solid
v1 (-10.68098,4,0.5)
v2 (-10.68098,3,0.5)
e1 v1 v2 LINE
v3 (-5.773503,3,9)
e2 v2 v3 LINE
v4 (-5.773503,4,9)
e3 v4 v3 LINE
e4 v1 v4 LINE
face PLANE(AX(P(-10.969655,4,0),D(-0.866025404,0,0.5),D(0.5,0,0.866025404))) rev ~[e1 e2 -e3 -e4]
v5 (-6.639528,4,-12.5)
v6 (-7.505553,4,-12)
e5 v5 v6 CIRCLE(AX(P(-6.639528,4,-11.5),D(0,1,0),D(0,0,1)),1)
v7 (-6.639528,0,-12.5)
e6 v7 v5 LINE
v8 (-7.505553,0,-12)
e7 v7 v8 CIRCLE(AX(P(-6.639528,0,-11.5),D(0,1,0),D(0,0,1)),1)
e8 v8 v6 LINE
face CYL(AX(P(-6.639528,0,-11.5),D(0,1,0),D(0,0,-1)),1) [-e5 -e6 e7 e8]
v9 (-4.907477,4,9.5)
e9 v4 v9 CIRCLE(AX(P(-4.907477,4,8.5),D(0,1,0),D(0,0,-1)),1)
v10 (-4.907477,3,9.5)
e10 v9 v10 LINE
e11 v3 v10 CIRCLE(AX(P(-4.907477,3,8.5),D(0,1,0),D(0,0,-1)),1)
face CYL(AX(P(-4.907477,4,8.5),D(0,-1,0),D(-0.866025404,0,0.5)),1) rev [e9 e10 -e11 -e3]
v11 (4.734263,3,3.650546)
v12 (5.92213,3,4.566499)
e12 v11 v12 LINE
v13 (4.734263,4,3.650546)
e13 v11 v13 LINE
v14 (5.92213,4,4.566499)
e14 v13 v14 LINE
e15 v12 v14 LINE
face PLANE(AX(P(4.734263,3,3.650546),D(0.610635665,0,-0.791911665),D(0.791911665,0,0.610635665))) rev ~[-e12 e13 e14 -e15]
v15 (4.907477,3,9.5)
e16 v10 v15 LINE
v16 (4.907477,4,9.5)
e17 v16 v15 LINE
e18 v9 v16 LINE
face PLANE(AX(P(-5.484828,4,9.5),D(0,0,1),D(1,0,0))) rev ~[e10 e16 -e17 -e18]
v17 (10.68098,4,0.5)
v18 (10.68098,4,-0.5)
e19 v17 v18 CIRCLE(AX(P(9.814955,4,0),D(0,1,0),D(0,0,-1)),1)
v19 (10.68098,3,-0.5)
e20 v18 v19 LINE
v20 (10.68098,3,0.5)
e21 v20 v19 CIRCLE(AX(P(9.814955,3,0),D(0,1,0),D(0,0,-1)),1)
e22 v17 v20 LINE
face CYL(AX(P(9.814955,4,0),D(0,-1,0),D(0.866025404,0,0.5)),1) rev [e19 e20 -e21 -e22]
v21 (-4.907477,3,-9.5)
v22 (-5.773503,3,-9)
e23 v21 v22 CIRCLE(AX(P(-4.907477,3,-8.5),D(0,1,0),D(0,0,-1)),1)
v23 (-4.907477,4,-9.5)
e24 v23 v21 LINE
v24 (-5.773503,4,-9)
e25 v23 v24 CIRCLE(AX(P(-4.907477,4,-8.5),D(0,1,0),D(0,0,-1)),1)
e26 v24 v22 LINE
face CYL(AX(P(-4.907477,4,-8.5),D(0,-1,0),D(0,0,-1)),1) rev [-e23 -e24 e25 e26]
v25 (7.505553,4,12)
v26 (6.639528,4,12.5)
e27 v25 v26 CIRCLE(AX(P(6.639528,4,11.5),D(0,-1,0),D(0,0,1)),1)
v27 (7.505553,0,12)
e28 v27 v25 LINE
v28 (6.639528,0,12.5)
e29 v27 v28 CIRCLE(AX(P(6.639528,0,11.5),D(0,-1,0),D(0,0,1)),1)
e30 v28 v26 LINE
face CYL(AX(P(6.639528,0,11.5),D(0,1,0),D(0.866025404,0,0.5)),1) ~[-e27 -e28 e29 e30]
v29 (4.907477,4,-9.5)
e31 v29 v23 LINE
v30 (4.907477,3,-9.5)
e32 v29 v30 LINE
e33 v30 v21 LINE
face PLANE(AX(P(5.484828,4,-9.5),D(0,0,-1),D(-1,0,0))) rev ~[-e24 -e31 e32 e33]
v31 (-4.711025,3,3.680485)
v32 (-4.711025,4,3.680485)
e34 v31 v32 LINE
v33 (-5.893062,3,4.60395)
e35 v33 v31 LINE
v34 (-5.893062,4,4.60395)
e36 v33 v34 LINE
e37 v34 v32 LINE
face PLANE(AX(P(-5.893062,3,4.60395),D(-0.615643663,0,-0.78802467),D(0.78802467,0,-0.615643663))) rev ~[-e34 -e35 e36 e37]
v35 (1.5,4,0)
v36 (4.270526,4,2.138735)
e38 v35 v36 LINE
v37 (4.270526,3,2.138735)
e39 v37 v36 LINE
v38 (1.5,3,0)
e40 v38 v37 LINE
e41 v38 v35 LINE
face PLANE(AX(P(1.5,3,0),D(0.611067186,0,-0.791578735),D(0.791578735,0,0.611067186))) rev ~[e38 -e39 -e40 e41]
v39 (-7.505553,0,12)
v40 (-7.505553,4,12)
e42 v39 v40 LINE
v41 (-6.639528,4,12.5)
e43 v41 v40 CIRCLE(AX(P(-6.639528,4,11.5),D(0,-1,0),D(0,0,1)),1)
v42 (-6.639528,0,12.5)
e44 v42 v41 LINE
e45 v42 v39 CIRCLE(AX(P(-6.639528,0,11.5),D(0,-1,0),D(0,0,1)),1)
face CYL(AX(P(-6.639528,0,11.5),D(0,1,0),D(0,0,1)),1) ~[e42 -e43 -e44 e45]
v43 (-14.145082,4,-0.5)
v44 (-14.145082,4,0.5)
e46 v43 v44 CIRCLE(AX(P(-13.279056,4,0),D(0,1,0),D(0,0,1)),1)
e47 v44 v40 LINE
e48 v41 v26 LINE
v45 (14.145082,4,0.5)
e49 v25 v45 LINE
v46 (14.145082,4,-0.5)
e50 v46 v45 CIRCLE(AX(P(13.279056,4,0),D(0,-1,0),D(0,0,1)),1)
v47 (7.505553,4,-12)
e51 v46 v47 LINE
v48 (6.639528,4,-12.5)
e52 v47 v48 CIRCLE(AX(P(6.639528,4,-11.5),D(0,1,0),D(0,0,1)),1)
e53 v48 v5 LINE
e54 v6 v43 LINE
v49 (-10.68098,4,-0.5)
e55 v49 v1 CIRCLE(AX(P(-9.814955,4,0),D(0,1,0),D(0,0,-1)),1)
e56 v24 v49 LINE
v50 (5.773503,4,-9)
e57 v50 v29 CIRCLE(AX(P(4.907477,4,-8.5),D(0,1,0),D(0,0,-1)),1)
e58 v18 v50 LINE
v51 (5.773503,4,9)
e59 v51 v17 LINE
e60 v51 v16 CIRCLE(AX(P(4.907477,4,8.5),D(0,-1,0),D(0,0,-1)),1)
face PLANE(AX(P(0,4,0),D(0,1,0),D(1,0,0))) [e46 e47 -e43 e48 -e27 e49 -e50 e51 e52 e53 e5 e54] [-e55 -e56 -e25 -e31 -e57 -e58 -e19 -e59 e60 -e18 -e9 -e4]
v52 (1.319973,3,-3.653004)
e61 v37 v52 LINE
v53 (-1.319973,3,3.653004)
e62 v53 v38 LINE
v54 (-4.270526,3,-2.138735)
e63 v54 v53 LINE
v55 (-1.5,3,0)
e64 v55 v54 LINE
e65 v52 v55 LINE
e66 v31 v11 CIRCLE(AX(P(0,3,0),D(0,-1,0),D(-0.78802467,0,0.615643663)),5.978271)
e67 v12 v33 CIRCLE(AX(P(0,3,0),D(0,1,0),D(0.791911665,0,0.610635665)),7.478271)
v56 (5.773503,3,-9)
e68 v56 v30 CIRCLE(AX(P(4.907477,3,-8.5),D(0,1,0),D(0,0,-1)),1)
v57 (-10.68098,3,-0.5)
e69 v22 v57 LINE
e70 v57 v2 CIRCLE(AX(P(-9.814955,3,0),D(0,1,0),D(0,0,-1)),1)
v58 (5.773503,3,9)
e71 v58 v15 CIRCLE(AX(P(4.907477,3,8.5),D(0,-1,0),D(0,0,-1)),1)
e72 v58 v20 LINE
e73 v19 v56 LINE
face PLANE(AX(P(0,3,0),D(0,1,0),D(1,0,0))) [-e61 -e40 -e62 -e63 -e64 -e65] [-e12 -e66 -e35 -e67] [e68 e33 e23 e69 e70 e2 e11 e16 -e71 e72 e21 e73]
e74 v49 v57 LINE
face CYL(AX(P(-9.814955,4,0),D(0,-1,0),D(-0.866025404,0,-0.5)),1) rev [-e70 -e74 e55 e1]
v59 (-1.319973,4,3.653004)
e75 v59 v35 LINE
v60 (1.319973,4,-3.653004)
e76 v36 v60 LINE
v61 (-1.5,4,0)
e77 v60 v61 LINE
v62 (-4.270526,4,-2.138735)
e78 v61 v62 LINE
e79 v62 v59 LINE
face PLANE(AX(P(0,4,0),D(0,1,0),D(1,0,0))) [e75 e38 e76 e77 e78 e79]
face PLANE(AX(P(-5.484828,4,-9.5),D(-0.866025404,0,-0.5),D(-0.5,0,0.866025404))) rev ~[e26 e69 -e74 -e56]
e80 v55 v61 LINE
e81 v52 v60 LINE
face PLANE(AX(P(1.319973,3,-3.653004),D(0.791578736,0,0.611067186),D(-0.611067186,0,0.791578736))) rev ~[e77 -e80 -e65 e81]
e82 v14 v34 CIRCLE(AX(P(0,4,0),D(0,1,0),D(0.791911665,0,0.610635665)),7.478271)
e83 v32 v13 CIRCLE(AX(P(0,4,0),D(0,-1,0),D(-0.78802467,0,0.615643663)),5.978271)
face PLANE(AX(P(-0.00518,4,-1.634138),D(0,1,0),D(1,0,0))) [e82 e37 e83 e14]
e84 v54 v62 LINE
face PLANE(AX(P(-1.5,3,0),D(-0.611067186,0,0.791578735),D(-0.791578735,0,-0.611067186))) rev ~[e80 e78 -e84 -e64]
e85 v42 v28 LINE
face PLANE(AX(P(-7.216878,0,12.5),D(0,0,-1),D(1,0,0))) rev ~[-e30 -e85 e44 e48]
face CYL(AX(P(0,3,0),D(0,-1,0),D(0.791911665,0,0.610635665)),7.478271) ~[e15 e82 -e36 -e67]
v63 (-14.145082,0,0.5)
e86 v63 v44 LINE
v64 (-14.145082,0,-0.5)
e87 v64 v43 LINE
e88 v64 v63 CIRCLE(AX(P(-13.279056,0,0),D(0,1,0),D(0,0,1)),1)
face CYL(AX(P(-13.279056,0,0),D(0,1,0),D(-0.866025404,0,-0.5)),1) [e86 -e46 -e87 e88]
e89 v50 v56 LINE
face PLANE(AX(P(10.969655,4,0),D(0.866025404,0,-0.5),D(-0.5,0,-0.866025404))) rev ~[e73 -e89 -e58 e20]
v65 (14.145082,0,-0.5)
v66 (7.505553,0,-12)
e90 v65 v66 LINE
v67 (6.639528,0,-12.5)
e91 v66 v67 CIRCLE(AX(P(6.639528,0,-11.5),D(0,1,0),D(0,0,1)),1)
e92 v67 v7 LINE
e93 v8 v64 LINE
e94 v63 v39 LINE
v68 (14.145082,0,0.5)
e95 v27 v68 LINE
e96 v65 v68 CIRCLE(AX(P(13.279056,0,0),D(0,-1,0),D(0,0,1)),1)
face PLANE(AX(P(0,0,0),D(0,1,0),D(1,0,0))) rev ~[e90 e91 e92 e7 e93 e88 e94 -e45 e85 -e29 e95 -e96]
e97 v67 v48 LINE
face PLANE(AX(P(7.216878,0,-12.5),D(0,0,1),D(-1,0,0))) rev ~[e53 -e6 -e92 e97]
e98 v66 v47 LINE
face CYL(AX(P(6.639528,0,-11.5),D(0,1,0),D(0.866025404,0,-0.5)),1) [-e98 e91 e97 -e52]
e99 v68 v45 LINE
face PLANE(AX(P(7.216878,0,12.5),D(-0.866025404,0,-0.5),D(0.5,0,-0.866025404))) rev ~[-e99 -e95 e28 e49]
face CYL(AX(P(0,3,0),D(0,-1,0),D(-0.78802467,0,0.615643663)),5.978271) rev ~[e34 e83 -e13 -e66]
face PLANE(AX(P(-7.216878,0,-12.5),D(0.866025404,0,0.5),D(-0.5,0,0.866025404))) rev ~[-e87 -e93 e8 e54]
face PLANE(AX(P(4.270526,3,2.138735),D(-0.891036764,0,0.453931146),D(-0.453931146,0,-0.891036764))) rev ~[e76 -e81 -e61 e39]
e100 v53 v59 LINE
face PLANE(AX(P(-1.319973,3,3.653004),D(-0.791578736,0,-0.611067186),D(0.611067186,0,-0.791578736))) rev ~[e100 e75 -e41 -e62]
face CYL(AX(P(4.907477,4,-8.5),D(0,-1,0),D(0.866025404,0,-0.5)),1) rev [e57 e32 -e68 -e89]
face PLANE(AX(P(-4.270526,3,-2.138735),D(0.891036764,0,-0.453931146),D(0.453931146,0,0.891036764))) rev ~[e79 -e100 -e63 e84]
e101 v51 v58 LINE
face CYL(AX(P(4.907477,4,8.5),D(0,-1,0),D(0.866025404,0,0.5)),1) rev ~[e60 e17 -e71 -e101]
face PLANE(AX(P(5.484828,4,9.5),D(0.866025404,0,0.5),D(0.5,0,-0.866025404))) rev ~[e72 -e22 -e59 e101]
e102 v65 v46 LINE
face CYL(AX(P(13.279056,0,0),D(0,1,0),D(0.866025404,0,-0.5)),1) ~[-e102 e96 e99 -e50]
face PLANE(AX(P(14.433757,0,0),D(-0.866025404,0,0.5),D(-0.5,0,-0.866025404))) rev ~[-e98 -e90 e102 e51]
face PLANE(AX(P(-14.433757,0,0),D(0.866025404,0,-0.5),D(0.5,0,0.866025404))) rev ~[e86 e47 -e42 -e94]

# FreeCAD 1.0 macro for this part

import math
import FreeCAD as App
import Part
import Sketcher

V = App.Vector
Q = App.Units.Quantity


def edges_at(feature, points):
    """Names of the edges that pass closest to the given points."""
    edges = feature.Shape.Edges
    near = lambda p: min(range(len(edges)), key=lambda i: edges[i].distToShape(Part.Vertex(*p))[0])
    return sorted({f"Edge{near(p) + 1}" for p in points})

doc = App.newDocument("Part")
body = doc.addObject("PartDesign::Body", "Body")

# Sketch on XZ plane
sketch1 = doc.addObject("Sketcher::SketchObject", "Sketch")
body.addObject(sketch1)
sketch1.AttachmentSupport = (doc.XZ_Plane, [""])
sketch1.MapMode = "FlatFace"
sketch1.addGeometry([
    Part.LineSegment(V(14, 0, 0), V(7, -12, 0)),  # 0
    Part.LineSegment(V(7, -12, 0), V(-7, -12, 0)),  # 1
    Part.LineSegment(V(-7, -12, 0), V(-14, 0, 0)),  # 2
    Part.LineSegment(V(-14, 0, 0), V(-7, 12, 0)),  # 3
    Part.LineSegment(V(-7, 12, 0), V(7, 12, 0)),  # 4
    Part.LineSegment(V(7, 12, 0), V(14, 0, 0)),  # 5
], False)
sketch1.addConstraint([
    Sketcher.Constraint("Coincident", 0, 2, 1, 1),
    Sketcher.Constraint("Coincident", 1, 2, 2, 1),
    Sketcher.Constraint("Coincident", 2, 2, 3, 1),
    Sketcher.Constraint("Coincident", 3, 2, 4, 1),
    Sketcher.Constraint("Coincident", 4, 2, 5, 1),
    Sketcher.Constraint("Coincident", 5, 2, 0, 1),
    Sketcher.Constraint("Horizontal", 1),
    Sketcher.Constraint("Horizontal", 4),
    Sketcher.Constraint("Symmetric", 0, 2, 3, 2, -1, 1),
    Sketcher.Constraint("Symmetric", 2, 2, 5, 2, -1, 1),
    Sketcher.Constraint("PointOnObject", 2, 2, -1),
    Sketcher.Constraint("Parallel", 2, 5),
    Sketcher.Constraint("Vertical", 1, 2, 3, 2),
    Sketcher.Constraint("Angle", 0, Q("-120 deg")),
    Sketcher.Constraint("DistanceY", 1, 2, 3, 2, 25.0),
    Sketcher.Constraint("DistanceX", 1, 2, 1, 1, 14.433757),
])
pad1 = doc.addObject("PartDesign::Pad", "Pad")
body.addObject(pad1)
pad1.Profile = sketch1
pad1.Length = 4
pad1.Reversed = True

# Sketch on XZ plane
sketch2 = doc.addObject("Sketcher::SketchObject", "Sketch001")
body.addObject(sketch2)
sketch2.AttachmentSupport = (doc.XZ_Plane, [""])
sketch2.MapMode = "FlatFace"
sketch2.AttachmentOffset = App.Placement(V(0, 0, -4), App.Rotation())
sketch2.addGeometry([
    Part.LineSegment(V(5, 10, 0), V(11, 0, 0)),  # 0
    Part.LineSegment(V(11, 0, 0), V(5, -10, 0)),  # 1
    Part.LineSegment(V(5, -10, 0), V(-5, -10, 0)),  # 2
    Part.LineSegment(V(-5, -10, 0), V(-11, 0, 0)),  # 3
    Part.LineSegment(V(-11, 0, 0), V(-5, 10, 0)),  # 4
    Part.LineSegment(V(-5, 10, 0), V(5, 10, 0)),  # 5
], False)
sketch2.addConstraint([
    Sketcher.Constraint("Coincident", 0, 2, 1, 1),
    Sketcher.Constraint("Coincident", 1, 2, 2, 1),
    Sketcher.Constraint("Coincident", 2, 2, 3, 1),
    Sketcher.Constraint("Coincident", 3, 2, 4, 1),
    Sketcher.Constraint("Coincident", 4, 2, 5, 1),
    Sketcher.Constraint("Coincident", 5, 2, 0, 1),
    Sketcher.Constraint("Horizontal", 2),
    Sketcher.Constraint("Horizontal", 5),
    Sketcher.Constraint("Symmetric", 0, 2, 3, 2, -1, 1),
    Sketcher.Constraint("Symmetric", 1, 2, 4, 2, -1, 1),
    Sketcher.Constraint("PointOnObject", 0, 2, -1),
    Sketcher.Constraint("Parallel", 0, 3),
    Sketcher.Constraint("Vertical", 2, 2, 4, 2),
    Sketcher.Constraint("Angle", 0, Q("-60 deg")),
    Sketcher.Constraint("DistanceY", 2, 2, 4, 2, 19.0),
    Sketcher.Constraint("DistanceX", 2, 2, 2, 1, 10.969655),
])
pocket1 = doc.addObject("PartDesign::Pocket", "Pocket")
body.addObject(pocket1)
pocket1.Profile = sketch2
pocket1.Length = 1
pocket1.Reversed = True
doc.recompute()

fillet = doc.addObject("PartDesign::Fillet", "Fillet")
body.addObject(fillet)
fillet.Base = (pocket1, edges_at(pocket1, [
    (7.217, 2, 12.5),
    (-7.217, 2, 12.5),
    (-14.434, 2, 0),
    (-7.217, 2, -12.5),
    (7.217, 2, -12.5),
    (14.434, 2, 0),
    (5.485, 3.5, 9.5),
    (-5.485, 3.5, 9.5),
    (-10.97, 3.5, 0),
    (-5.485, 3.5, -9.5),
    (5.485, 3.5, -9.5),
    (10.97, 3.5, 0),
]))
fillet.Radius = 1

# Sketch on XZ plane
sketch3 = doc.addObject("Sketcher::SketchObject", "Sketch002")
body.addObject(sketch3)
sketch3.AttachmentSupport = (doc.XZ_Plane, [""])
sketch3.MapMode = "FlatFace"
sketch3.AttachmentOffset = App.Placement(V(0, 0, -3), App.Rotation())
sketch3.addGeometry([
    Part.LineSegment(V(4.3, 2.1, 0), V(1.3, -3.7, 0)),  # 0
    Part.LineSegment(V(1.3, -3.7, 0), V(-1.5, 0, 0)),  # 1
    Part.LineSegment(V(-1.5, 0, 0), V(-4.3, -2.1, 0)),  # 2
    Part.LineSegment(V(-4.3, -2.1, 0), V(-1.3, 3.7, 0)),  # 3
    Part.LineSegment(V(-1.3, 3.7, 0), V(1.5, 0, 0)),  # 4
    Part.LineSegment(V(1.5, 0, 0), V(4.3, 2.1, 0)),  # 5
    Part.LineSegment(V(4.7, 3.7, 0), V(5.9, 4.6, 0)),  # 6
    Part.ArcOfCircle(Part.Circle(V(0, 0, 0), V(0, 0, 1), 7.5), math.radians(142), math.radians(398)),  # 7
    Part.LineSegment(V(-5.9, 4.6, 0), V(-4.7, 3.7, 0)),  # 8
    Part.ArcOfCircle(Part.Circle(V(0, 0, 0), V(0, 0, 1), 6), math.radians(142), math.radians(398)),  # 9
], False)
sketch3.addConstraint([
    Sketcher.Constraint("Coincident", 0, 2, 1, 1),
    Sketcher.Constraint("Coincident", 1, 2, 2, 1),
    Sketcher.Constraint("Coincident", 2, 2, 3, 1),
    Sketcher.Constraint("Coincident", 3, 2, 4, 1),
    Sketcher.Constraint("Coincident", 4, 2, 5, 1),
    Sketcher.Constraint("Coincident", 5, 2, 0, 1),
    Sketcher.Constraint("Coincident", 6, 2, 7, 2),
    Sketcher.Constraint("Coincident", 7, 1, 8, 1),
    Sketcher.Constraint("Coincident", 8, 2, 9, 1),
    Sketcher.Constraint("Coincident", 9, 2, 6, 1),
    Sketcher.Constraint("Coincident", 7, 3, -1, 1),
    Sketcher.Constraint("Coincident", 9, 3, -1, 1),
    Sketcher.Constraint("Symmetric", 0, 2, 3, 2, -1, 1),
    Sketcher.Constraint("Symmetric", 1, 2, 4, 2, -1, 1),
    Sketcher.Constraint("Symmetric", 2, 2, 5, 2, -1, 1),
    Sketcher.Constraint("PointOnObject", 1, 2, -1),
    Sketcher.Constraint("Perpendicular", 1, 2),
    Sketcher.Constraint("DistanceX", 1, 2, 4, 2, 3.0),
    Sketcher.Constraint("Distance", 0, 6.5),
    Sketcher.Constraint("Distance", 2, 3.5),
    Sketcher.Constraint("Distance", 6, 1.5),
    Sketcher.Constraint("Radius", 7, 7.478271),
    Sketcher.Constraint("DistanceY", -1, 1, 6, 2, 4.566499),
    Sketcher.Constraint("DistanceX", 2, 2, 0, 2, 5.590499),
    Sketcher.Constraint("DistanceX", 8, 2, 2, 2, 0.4405),
    Sketcher.Constraint("DistanceY", -1, 1, 7, 1, 4.60395),
    Sketcher.Constraint("DistanceY", 5, 2, 9, 2, 1.511811),
])
pad2 = doc.addObject("PartDesign::Pad", "Pad001")
body.addObject(pad2)
pad2.Profile = sketch3
pad2.Length = 1
pad2.Reversed = True

doc.recompute()
